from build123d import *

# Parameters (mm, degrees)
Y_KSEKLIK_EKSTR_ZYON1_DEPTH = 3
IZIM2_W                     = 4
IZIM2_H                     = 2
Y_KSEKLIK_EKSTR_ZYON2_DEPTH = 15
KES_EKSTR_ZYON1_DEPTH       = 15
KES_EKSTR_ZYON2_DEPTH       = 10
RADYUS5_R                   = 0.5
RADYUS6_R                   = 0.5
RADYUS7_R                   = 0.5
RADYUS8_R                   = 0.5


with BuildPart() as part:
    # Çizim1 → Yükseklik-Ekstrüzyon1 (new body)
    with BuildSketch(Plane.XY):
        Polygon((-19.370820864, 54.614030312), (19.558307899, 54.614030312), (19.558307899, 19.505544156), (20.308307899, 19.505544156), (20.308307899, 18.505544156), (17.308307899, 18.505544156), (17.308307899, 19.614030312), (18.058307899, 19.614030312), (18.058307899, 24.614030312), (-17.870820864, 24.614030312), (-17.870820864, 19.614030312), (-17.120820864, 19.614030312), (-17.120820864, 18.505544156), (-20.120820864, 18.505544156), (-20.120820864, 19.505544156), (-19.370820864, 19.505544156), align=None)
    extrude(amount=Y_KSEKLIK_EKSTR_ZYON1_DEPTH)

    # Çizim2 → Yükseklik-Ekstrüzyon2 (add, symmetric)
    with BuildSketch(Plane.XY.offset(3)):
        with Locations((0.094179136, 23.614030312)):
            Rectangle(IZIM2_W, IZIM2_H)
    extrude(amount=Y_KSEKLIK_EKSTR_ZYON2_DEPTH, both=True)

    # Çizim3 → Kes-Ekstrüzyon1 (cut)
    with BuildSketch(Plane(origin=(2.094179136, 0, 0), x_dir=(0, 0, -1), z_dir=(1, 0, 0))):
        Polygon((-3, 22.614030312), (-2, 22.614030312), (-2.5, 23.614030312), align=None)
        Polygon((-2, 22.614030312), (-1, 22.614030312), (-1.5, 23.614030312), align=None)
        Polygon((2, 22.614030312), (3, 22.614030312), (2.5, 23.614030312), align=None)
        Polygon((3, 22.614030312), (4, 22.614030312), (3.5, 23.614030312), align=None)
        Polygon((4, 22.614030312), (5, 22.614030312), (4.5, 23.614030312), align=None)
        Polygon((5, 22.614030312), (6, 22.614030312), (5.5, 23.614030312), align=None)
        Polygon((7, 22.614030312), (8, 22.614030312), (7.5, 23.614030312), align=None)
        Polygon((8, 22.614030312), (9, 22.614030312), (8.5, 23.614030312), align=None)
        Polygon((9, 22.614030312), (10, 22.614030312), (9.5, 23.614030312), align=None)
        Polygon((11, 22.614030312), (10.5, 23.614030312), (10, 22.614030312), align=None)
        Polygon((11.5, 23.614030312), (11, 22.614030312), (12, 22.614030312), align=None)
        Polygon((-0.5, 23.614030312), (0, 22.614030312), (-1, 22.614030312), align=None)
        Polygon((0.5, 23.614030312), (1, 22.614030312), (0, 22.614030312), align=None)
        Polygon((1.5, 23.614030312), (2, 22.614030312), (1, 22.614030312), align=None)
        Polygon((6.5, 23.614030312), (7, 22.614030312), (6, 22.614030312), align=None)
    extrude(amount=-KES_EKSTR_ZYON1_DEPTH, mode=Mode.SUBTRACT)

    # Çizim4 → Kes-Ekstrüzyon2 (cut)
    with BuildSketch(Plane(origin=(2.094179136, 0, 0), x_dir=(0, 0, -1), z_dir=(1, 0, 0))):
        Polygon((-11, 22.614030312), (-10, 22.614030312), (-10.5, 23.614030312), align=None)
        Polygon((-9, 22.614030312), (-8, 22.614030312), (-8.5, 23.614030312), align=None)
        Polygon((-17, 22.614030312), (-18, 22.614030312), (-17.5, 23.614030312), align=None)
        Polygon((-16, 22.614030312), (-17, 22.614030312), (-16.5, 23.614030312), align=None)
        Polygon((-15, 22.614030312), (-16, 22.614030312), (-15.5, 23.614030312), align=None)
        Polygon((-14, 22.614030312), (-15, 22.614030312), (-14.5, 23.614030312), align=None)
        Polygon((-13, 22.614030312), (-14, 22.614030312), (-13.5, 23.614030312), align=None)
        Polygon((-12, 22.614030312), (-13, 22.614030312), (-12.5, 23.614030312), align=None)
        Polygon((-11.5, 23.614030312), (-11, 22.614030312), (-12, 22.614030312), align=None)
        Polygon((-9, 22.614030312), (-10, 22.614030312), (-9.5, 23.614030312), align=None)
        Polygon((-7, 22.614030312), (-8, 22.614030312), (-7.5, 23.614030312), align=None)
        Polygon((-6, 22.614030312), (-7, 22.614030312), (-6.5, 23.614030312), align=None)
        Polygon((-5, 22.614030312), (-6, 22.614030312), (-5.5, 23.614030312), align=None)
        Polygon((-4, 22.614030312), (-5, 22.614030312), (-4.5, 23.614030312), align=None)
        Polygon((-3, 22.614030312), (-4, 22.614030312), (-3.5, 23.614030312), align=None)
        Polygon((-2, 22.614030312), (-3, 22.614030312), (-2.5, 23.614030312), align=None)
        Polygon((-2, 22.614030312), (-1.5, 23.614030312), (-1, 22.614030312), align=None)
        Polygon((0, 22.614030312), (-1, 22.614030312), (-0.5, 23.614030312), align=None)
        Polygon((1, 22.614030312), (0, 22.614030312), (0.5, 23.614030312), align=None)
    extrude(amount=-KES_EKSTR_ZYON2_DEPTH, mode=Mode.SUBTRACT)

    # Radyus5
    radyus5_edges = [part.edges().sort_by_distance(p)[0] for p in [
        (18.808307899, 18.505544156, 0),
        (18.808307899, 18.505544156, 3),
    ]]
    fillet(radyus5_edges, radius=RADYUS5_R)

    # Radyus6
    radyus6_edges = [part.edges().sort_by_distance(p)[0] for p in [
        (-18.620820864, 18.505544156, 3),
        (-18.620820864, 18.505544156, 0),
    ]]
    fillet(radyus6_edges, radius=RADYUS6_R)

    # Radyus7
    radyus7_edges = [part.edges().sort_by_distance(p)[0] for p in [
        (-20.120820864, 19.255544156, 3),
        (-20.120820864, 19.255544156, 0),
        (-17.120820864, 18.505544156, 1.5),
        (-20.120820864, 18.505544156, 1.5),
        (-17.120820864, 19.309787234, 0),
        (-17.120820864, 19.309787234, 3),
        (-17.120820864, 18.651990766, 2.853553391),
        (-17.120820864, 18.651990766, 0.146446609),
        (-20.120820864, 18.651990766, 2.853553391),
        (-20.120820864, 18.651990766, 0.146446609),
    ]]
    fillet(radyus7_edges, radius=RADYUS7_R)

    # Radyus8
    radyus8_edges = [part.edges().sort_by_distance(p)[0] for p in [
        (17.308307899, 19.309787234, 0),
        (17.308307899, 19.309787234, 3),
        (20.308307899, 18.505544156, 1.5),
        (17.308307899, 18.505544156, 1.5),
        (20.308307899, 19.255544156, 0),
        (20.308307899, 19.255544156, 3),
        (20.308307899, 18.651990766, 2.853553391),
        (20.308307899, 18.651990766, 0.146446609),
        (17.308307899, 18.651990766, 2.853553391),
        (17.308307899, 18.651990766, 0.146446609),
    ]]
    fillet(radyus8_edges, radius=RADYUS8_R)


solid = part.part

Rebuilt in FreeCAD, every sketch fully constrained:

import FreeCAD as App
import Part
import Sketcher
from FreeCAD import Vector
Q = App.Units.Quantity


def edges_at(feature, points):
    """Names of the edges that pass closest to the given points."""
    edges = feature.Shape.Edges
    near = lambda p: min(range(len(edges)), key=lambda i: edges[i].distToShape(Part.Vertex(*p))[0])
    return sorted({f"Edge{near(p) + 1}" for p in points})

doc = App.newDocument("Part")
body = doc.addObject("PartDesign::Body", "Body")

# Sketch on XY plane
sketch1 = body.newObject("Sketcher::SketchObject", "Sketch")
sketch1.AttachmentSupport = (doc.getObject("XY_Plane"), [""])
sketch1.MapMode = "FlatFace"
sketch1.addGeometry(Part.LineSegment(Vector(19.6, 54.6, 0), Vector(-19.4, 54.6, 0)), False)
sketch1.addGeometry(Part.LineSegment(Vector(-19.4, 54.6, 0), Vector(-19.4, 19.5, 0)), False)
sketch1.addGeometry(Part.LineSegment(Vector(-19.4, 19.5, 0), Vector(-20.1, 19.5, 0)), False)
sketch1.addGeometry(Part.LineSegment(Vector(-20.1, 19.5, 0), Vector(-20.1, 18.5, 0)), False)
sketch1.addGeometry(Part.LineSegment(Vector(-20.1, 18.5, 0), Vector(-17.1, 18.5, 0)), False)
sketch1.addGeometry(Part.LineSegment(Vector(-17.1, 18.5, 0), Vector(-17.1, 19.6, 0)), False)
sketch1.addGeometry(Part.LineSegment(Vector(-17.1, 19.6, 0), Vector(-17.9, 19.6, 0)), False)
sketch1.addGeometry(Part.LineSegment(Vector(-17.9, 19.6, 0), Vector(-17.9, 24.6, 0)), False)
sketch1.addGeometry(Part.LineSegment(Vector(-17.9, 24.6, 0), Vector(18.1, 24.6, 0)), False)
sketch1.addGeometry(Part.LineSegment(Vector(18.1, 24.6, 0), Vector(18.1, 19.6, 0)), False)
sketch1.addGeometry(Part.LineSegment(Vector(18.1, 19.6, 0), Vector(17.3, 19.6, 0)), False)
sketch1.addGeometry(Part.LineSegment(Vector(17.3, 19.6, 0), Vector(17.3, 18.5, 0)), False)
sketch1.addGeometry(Part.LineSegment(Vector(17.3, 18.5, 0), Vector(20.3, 18.5, 0)), False)
sketch1.addGeometry(Part.LineSegment(Vector(20.3, 18.5, 0), Vector(20.3, 19.5, 0)), False)
sketch1.addGeometry(Part.LineSegment(Vector(20.3, 19.5, 0), Vector(19.6, 19.5, 0)), False)
sketch1.addGeometry(Part.LineSegment(Vector(19.6, 19.5, 0), Vector(19.6, 54.6, 0)), False)
sketch1.addConstraint(Sketcher.Constraint("Coincident", 0, 2, 1, 1))
sketch1.addConstraint(Sketcher.Constraint("Coincident", 1, 2, 2, 1))
sketch1.addConstraint(Sketcher.Constraint("Coincident", 2, 2, 3, 1))
sketch1.addConstraint(Sketcher.Constraint("Coincident", 3, 2, 4, 1))
sketch1.addConstraint(Sketcher.Constraint("Coincident", 4, 2, 5, 1))
sketch1.addConstraint(Sketcher.Constraint("Coincident", 5, 2, 6, 1))
sketch1.addConstraint(Sketcher.Constraint("Coincident", 6, 2, 7, 1))
sketch1.addConstraint(Sketcher.Constraint("Coincident", 7, 2, 8, 1))
sketch1.addConstraint(Sketcher.Constraint("Coincident", 8, 2, 9, 1))
sketch1.addConstraint(Sketcher.Constraint("Coincident", 9, 2, 10, 1))
sketch1.addConstraint(Sketcher.Constraint("Coincident", 10, 2, 11, 1))
sketch1.addConstraint(Sketcher.Constraint("Coincident", 11, 2, 12, 1))
sketch1.addConstraint(Sketcher.Constraint("Coincident", 12, 2, 13, 1))
sketch1.addConstraint(Sketcher.Constraint("Coincident", 13, 2, 14, 1))
sketch1.addConstraint(Sketcher.Constraint("Coincident", 14, 2, 15, 1))
sketch1.addConstraint(Sketcher.Constraint("Coincident", 15, 2, 0, 1))
sketch1.addConstraint(Sketcher.Constraint("Horizontal", 0))
sketch1.addConstraint(Sketcher.Constraint("Vertical", 1))
sketch1.addConstraint(Sketcher.Constraint("Horizontal", 2))
sketch1.addConstraint(Sketcher.Constraint("Vertical", 3))
sketch1.addConstraint(Sketcher.Constraint("Horizontal", 4))
sketch1.addConstraint(Sketcher.Constraint("Vertical", 5))
sketch1.addConstraint(Sketcher.Constraint("Horizontal", 6))
sketch1.addConstraint(Sketcher.Constraint("Vertical", 7))
sketch1.addConstraint(Sketcher.Constraint("Horizontal", 8))
sketch1.addConstraint(Sketcher.Constraint("Vertical", 9))
sketch1.addConstraint(Sketcher.Constraint("Horizontal", 10))
sketch1.addConstraint(Sketcher.Constraint("Vertical", 11))
sketch1.addConstraint(Sketcher.Constraint("Horizontal", 12))
sketch1.addConstraint(Sketcher.Constraint("Vertical", 13))
sketch1.addConstraint(Sketcher.Constraint("Horizontal", 14))
sketch1.addConstraint(Sketcher.Constraint("Vertical", 15))
sketch1.addConstraint(Sketcher.Constraint("Horizontal", 6, 2, 9, 2))
sketch1.addConstraint(Sketcher.Constraint("Horizontal", 4, 2, 11, 2))
sketch1.addConstraint(Sketcher.Constraint("Horizontal", 2, 2, 13, 2))
sketch1.addConstraint(Sketcher.Constraint("Equal", 2, 6))
sketch1.addConstraint(Sketcher.Constraint("Equal", 6, 10))
sketch1.addConstraint(Sketcher.Constraint("Equal", 4, 12))
sketch1.addConstraint(Sketcher.Constraint("Equal", 10, 14))
sketch1.addConstraint(Sketcher.Constraint("DistanceX", 4, 1, 4, 2, Q("3 mm")))
sketch1.addConstraint(Sketcher.Constraint("DistanceY", 3, 2, 3, 1, Q("1 mm")))
sketch1.addConstraint(Sketcher.Constraint("DistanceY", 7, 1, 7, 2, Q("5 mm")))
sketch1.addConstraint(Sketcher.Constraint("DistanceY", 5, 2, 0, 2, Q("35 mm")))
sketch1.addConstraint(Sketcher.Constraint("DistanceX", 2, 2, 2, 1, Q("0.75 mm")))
sketch1.addConstraint(Sketcher.Constraint("DistanceX", 0, 2, 0, 1, Q("38.929129 mm")))
sketch1.addConstraint(Sketcher.Constraint("DistanceY", 1, 2, 1, 1, Q("35.108486 mm")))
sketch1.addConstraint(Sketcher.Constraint("DistanceX", 0, 2, -1, 1, Q("19.370821 mm")))
sketch1.addConstraint(Sketcher.Constraint("DistanceY", -1, 1, 0, 2, Q("54.61403 mm")))
pad1 = body.newObject("PartDesign::Pad", "Pad")
pad1.Profile = sketch1
pad1.Length = 3

# Sketch on XY plane
sketch2 = body.newObject("Sketcher::SketchObject", "Sketch001")
sketch2.AttachmentSupport = (doc.getObject("XY_Plane"), [""])
sketch2.MapMode = "FlatFace"
sketch2.AttachmentOffset = App.Placement(Vector(0, 0, 3), App.Rotation())
sketch2.addGeometry(Part.LineSegment(Vector(-1.9, 24.6, 0), Vector(-1.9, 22.6, 0)), False)
sketch2.addGeometry(Part.LineSegment(Vector(-1.9, 22.6, 0), Vector(2.1, 22.6, 0)), False)
sketch2.addGeometry(Part.LineSegment(Vector(2.1, 22.6, 0), Vector(2.1, 24.6, 0)), False)
sketch2.addGeometry(Part.LineSegment(Vector(2.1, 24.6, 0), Vector(-1.9, 24.6, 0)), False)
sketch2.addConstraint(Sketcher.Constraint("Coincident", 0, 2, 1, 1))
sketch2.addConstraint(Sketcher.Constraint("Coincident", 1, 2, 2, 1))
sketch2.addConstraint(Sketcher.Constraint("Coincident", 2, 2, 3, 1))
sketch2.addConstraint(Sketcher.Constraint("Coincident", 3, 2, 0, 1))
sketch2.addConstraint(Sketcher.Constraint("Vertical", 0))
sketch2.addConstraint(Sketcher.Constraint("Horizontal", 1))
sketch2.addConstraint(Sketcher.Constraint("Vertical", 2))
sketch2.addConstraint(Sketcher.Constraint("Horizontal", 3))
sketch2.addConstraint(Sketcher.Constraint("DistanceX", 1, 1, 1, 2, Q("4 mm")))
sketch2.addConstraint(Sketcher.Constraint("DistanceY", 0, 2, 0, 1, Q("2 mm")))
sketch2.addConstraint(Sketcher.Constraint("DistanceX", 0, 2, -1, 1, Q("1.905821 mm")))
sketch2.addConstraint(Sketcher.Constraint("DistanceY", -1, 1, 0, 2, Q("22.61403 mm")))
pad2 = body.newObject("PartDesign::Pad", "Pad001")
pad2.Profile = sketch2
pad2.Length = 30
pad2.Midplane = True

# Sketch on YZ plane
sketch3 = body.newObject("Sketcher::SketchObject", "Sketch002")
sketch3.AttachmentSupport = (doc.getObject("YZ_Plane"), [""])
sketch3.MapMode = "FlatFace"
sketch3.AttachmentOffset = App.Placement(Vector(0, 0, 2.094179), App.Rotation())
sketch3.addGeometry(Part.LineSegment(Vector(22.6, 3, 0), Vector(22.6, 2, 0)), False)
sketch3.addGeometry(Part.LineSegment(Vector(22.6, 2, 0), Vector(23.6, 2.5, 0)), False)
sketch3.addGeometry(Part.LineSegment(Vector(23.6, 2.5, 0), Vector(22.6, 3, 0)), False)
sketch3.addGeometry(Part.LineSegment(Vector(22.6, 2, 0), Vector(22.6, 1, 0)), False)
sketch3.addGeometry(Part.LineSegment(Vector(22.6, 1, 0), Vector(23.6, 1.5, 0)), False)
sketch3.addGeometry(Part.LineSegment(Vector(23.6, 1.5, 0), Vector(22.6, 2, 0)), False)
sketch3.addGeometry(Part.LineSegment(Vector(22.6, -2, 0), Vector(22.6, -3, 0)), False)
sketch3.addGeometry(Part.LineSegment(Vector(22.6, -3, 0), Vector(23.6, -2.5, 0)), False)
sketch3.addGeometry(Part.LineSegment(Vector(23.6, -2.5, 0), Vector(22.6, -2, 0)), False)
sketch3.addGeometry(Part.LineSegment(Vector(22.6, -3, 0), Vector(22.6, -4, 0)), False)
sketch3.addGeometry(Part.LineSegment(Vector(22.6, -4, 0), Vector(23.6, -3.5, 0)), False)
sketch3.addGeometry(Part.LineSegment(Vector(23.6, -3.5, 0), Vector(22.6, -3, 0)), False)
sketch3.addGeometry(Part.LineSegment(Vector(22.6, -4, 0), Vector(22.6, -5, 0)), False)
sketch3.addGeometry(Part.LineSegment(Vector(22.6, -5, 0), Vector(23.6, -4.5, 0)), False)
sketch3.addGeometry(Part.LineSegment(Vector(23.6, -4.5, 0), Vector(22.6, -4, 0)), False)
sketch3.addGeometry(Part.LineSegment(Vector(22.6, -5, 0), Vector(22.6, -6, 0)), False)
sketch3.addGeometry(Part.LineSegment(Vector(22.6, -6, 0), Vector(23.6, -5.5, 0)), False)
sketch3.addGeometry(Part.LineSegment(Vector(23.6, -5.5, 0), Vector(22.6, -5, 0)), False)
sketch3.addGeometry(Part.LineSegment(Vector(22.6, -7, 0), Vector(22.6, -8, 0)), False)
sketch3.addGeometry(Part.LineSegment(Vector(22.6, -8, 0), Vector(23.6, -7.5, 0)), False)
sketch3.addGeometry(Part.LineSegment(Vector(23.6, -7.5, 0), Vector(22.6, -7, 0)), False)
sketch3.addGeometry(Part.LineSegment(Vector(22.6, -8, 0), Vector(22.6, -9, 0)), False)
sketch3.addGeometry(Part.LineSegment(Vector(22.6, -9, 0), Vector(23.6, -8.5, 0)), False)
sketch3.addGeometry(Part.LineSegment(Vector(23.6, -8.5, 0), Vector(22.6, -8, 0)), False)
sketch3.addGeometry(Part.LineSegment(Vector(22.6, -9, 0), Vector(22.6, -10, 0)), False)
sketch3.addGeometry(Part.LineSegment(Vector(22.6, -10, 0), Vector(23.6, -9.5, 0)), False)
sketch3.addGeometry(Part.LineSegment(Vector(23.6, -9.5, 0), Vector(22.6, -9, 0)), False)
sketch3.addGeometry(Part.LineSegment(Vector(22.6, -11, 0), Vector(23.6, -10.5, 0)), False)
sketch3.addGeometry(Part.LineSegment(Vector(23.6, -10.5, 0), Vector(22.6, -10, 0)), False)
sketch3.addGeometry(Part.LineSegment(Vector(22.6, -10, 0), Vector(22.6, -11, 0)), False)
sketch3.addGeometry(Part.LineSegment(Vector(23.6, -11.5, 0), Vector(22.6, -11, 0)), False)
sketch3.addGeometry(Part.LineSegment(Vector(22.6, -11, 0), Vector(22.6, -12, 0)), False)
sketch3.addGeometry(Part.LineSegment(Vector(22.6, -12, 0), Vector(23.6, -11.5, 0)), False)
sketch3.addGeometry(Part.LineSegment(Vector(22.6, 0, 0), Vector(23.6, 0.5, 0)), False)
sketch3.addGeometry(Part.LineSegment(Vector(23.6, 0.5, 0), Vector(22.6, 1, 0)), False)
sketch3.addGeometry(Part.LineSegment(Vector(22.6, 1, 0), Vector(22.6, 0, 0)), False)
sketch3.addGeometry(Part.LineSegment(Vector(22.6, -1, 0), Vector(23.6, -0.5, 0)), False)
sketch3.addGeometry(Part.LineSegment(Vector(23.6, -0.5, 0), Vector(22.6, 0, 0)), False)
sketch3.addGeometry(Part.LineSegment(Vector(22.6, 0, 0), Vector(22.6, -1, 0)), False)
sketch3.addGeometry(Part.LineSegment(Vector(22.6, -2, 0), Vector(23.6, -1.5, 0)), False)
sketch3.addGeometry(Part.LineSegment(Vector(23.6, -1.5, 0), Vector(22.6, -1, 0)), False)
sketch3.addGeometry(Part.LineSegment(Vector(22.6, -1, 0), Vector(22.6, -2, 0)), False)
sketch3.addGeometry(Part.LineSegment(Vector(22.6, -7, 0), Vector(23.6, -6.5, 0)), False)
sketch3.addGeometry(Part.LineSegment(Vector(23.6, -6.5, 0), Vector(22.6, -6, 0)), False)
sketch3.addGeometry(Part.LineSegment(Vector(22.6, -6, 0), Vector(22.6, -7, 0)), False)
sketch3.addConstraint(Sketcher.Constraint("Coincident", 0, 2, 1, 1))
sketch3.addConstraint(Sketcher.Constraint("Coincident", 1, 2, 2, 1))
sketch3.addConstraint(Sketcher.Constraint("Coincident", 2, 2, 0, 1))
sketch3.addConstraint(Sketcher.Constraint("Coincident", 3, 2, 4, 1))
sketch3.addConstraint(Sketcher.Constraint("Coincident", 4, 2, 5, 1))
sketch3.addConstraint(Sketcher.Constraint("Coincident", 5, 2, 3, 1))
sketch3.addConstraint(Sketcher.Constraint("Coincident", 6, 2, 7, 1))
sketch3.addConstraint(Sketcher.Constraint("Coincident", 7, 2, 8, 1))
sketch3.addConstraint(Sketcher.Constraint("Coincident", 8, 2, 6, 1))
sketch3.addConstraint(Sketcher.Constraint("Coincident", 9, 2, 10, 1))
sketch3.addConstraint(Sketcher.Constraint("Coincident", 10, 2, 11, 1))
sketch3.addConstraint(Sketcher.Constraint("Coincident", 11, 2, 9, 1))
sketch3.addConstraint(Sketcher.Constraint("Coincident", 12, 2, 13, 1))
sketch3.addConstraint(Sketcher.Constraint("Coincident", 13, 2, 14, 1))
sketch3.addConstraint(Sketcher.Constraint("Coincident", 14, 2, 12, 1))
sketch3.addConstraint(Sketcher.Constraint("Coincident", 15, 2, 16, 1))
sketch3.addConstraint(Sketcher.Constraint("Coincident", 16, 2, 17, 1))
sketch3.addConstraint(Sketcher.Constraint("Coincident", 17, 2, 15, 1))
sketch3.addConstraint(Sketcher.Constraint("Coincident", 18, 2, 19, 1))
sketch3.addConstraint(Sketcher.Constraint("Coincident", 19, 2, 20, 1))
sketch3.addConstraint(Sketcher.Constraint("Coincident", 20, 2, 18, 1))
sketch3.addConstraint(Sketcher.Constraint("Coincident", 21, 2, 22, 1))
sketch3.addConstraint(Sketcher.Constraint("Coincident", 22, 2, 23, 1))
sketch3.addConstraint(Sketcher.Constraint("Coincident", 23, 2, 21, 1))
sketch3.addConstraint(Sketcher.Constraint("Coincident", 24, 2, 25, 1))
sketch3.addConstraint(Sketcher.Constraint("Coincident", 25, 2, 26, 1))
sketch3.addConstraint(Sketcher.Constraint("Coincident", 26, 2, 24, 1))
sketch3.addConstraint(Sketcher.Constraint("Coincident", 27, 2, 28, 1))
sketch3.addConstraint(Sketcher.Constraint("Coincident", 28, 2, 29, 1))
sketch3.addConstraint(Sketcher.Constraint("Coincident", 29, 2, 27, 1))
sketch3.addConstraint(Sketcher.Constraint("Coincident", 30, 2, 31, 1))
sketch3.addConstraint(Sketcher.Constraint("Coincident", 31, 2, 32, 1))
sketch3.addConstraint(Sketcher.Constraint("Coincident", 32, 2, 30, 1))
sketch3.addConstraint(Sketcher.Constraint("Coincident", 33, 2, 34, 1))
sketch3.addConstraint(Sketcher.Constraint("Coincident", 34, 2, 35, 1))
sketch3.addConstraint(Sketcher.Constraint("Coincident", 35, 2, 33, 1))
sketch3.addConstraint(Sketcher.Constraint("Coincident", 36, 2, 37, 1))
sketch3.addConstraint(Sketcher.Constraint("Coincident", 37, 2, 38, 1))
sketch3.addConstraint(Sketcher.Constraint("Coincident", 38, 2, 36, 1))
sketch3.addConstraint(Sketcher.Constraint("Coincident", 39, 2, 40, 1))
sketch3.addConstraint(Sketcher.Constraint("Coincident", 40, 2, 41, 1))
sketch3.addConstraint(Sketcher.Constraint("Coincident", 41, 2, 39, 1))
sketch3.addConstraint(Sketcher.Constraint("Coincident", 42, 2, 43, 1))
sketch3.addConstraint(Sketcher.Constraint("Coincident", 43, 2, 44, 1))
sketch3.addConstraint(Sketcher.Constraint("Coincident", 44, 2, 42, 1))
sketch3.addConstraint(Sketcher.Constraint("Vertical", 0))
sketch3.addConstraint(Sketcher.Constraint("Vertical", 3))
sketch3.addConstraint(Sketcher.Constraint("Vertical", 6))
sketch3.addConstraint(Sketcher.Constraint("Vertical", 9))
sketch3.addConstraint(Sketcher.Constraint("Vertical", 12))
sketch3.addConstraint(Sketcher.Constraint("Vertical", 15))
sketch3.addConstraint(Sketcher.Constraint("Vertical", 18))
sketch3.addConstraint(Sketcher.Constraint("Vertical", 21))
sketch3.addConstraint(Sketcher.Constraint("Vertical", 24))
sketch3.addConstraint(Sketcher.Constraint("Vertical", 29))
sketch3.addConstraint(Sketcher.Constraint("Vertical", 31))
sketch3.addConstraint(Sketcher.Constraint("Vertical", 35))
sketch3.addConstraint(Sketcher.Constraint("Vertical", 38))
sketch3.addConstraint(Sketcher.Constraint("Vertical", 41))
sketch3.addConstraint(Sketcher.Constraint("Vertical", 44))
sketch3.addConstraint(Sketcher.Constraint("Coincident", 5, 2, 0, 2))
sketch3.addConstraint(Sketcher.Constraint("Coincident", 11, 2, 6, 2))
sketch3.addConstraint(Sketcher.Constraint("Coincident", 14, 2, 9, 2))
sketch3.addConstraint(Sketcher.Constraint("Coincident", 17, 2, 12, 2))
sketch3.addConstraint(Sketcher.Constraint("Coincident", 23, 2, 18, 2))
sketch3.addConstraint(Sketcher.Constraint("Coincident", 26, 2, 21, 2))
sketch3.addConstraint(Sketcher.Constraint("Coincident", 28, 2, 24, 2))
sketch3.addConstraint(Sketcher.Constraint("Coincident", 30, 2, 29, 2))
sketch3.addConstraint(Sketcher.Constraint("Coincident", 34, 2, 3, 2))
sketch3.addConstraint(Sketcher.Constraint("Coincident", 37, 2, 35, 2))
sketch3.addConstraint(Sketcher.Constraint("Coincident", 40, 2, 38, 2))
sketch3.addConstraint(Sketcher.Constraint("Coincident", 41, 2, 8, 2))
sketch3.addConstraint(Sketcher.Constraint("Coincident", 43, 2, 15, 2))
sketch3.addConstraint(Sketcher.Constraint("Coincident", 44, 2, 20, 2))
sketch3.addConstraint(Sketcher.Constraint("Symmetric", 1, 2, 7, 2, -1))
sketch3.addConstraint(Sketcher.Constraint("Symmetric", 33, 2, 36, 2, -1))
sketch3.addConstraint(Sketcher.Constraint("Symmetric", 4, 2, 39, 2, -1))
sketch3.addConstraint(Sketcher.Constraint("PointOnObject", 35, 2, -1))
sketch3.addConstraint(Sketcher.Constraint("Parallel", 1, 4))
sketch3.addConstraint(Sketcher.Constraint("Parallel", 2, 5))
sketch3.addConstraint(Sketcher.Constraint("Parallel", 4, 7))
sketch3.addConstraint(Sketcher.Constraint("Parallel", 5, 8))
sketch3.addConstraint(Sketcher.Constraint("Parallel", 7, 10))
sketch3.addConstraint(Sketcher.Constraint("Parallel", 8, 11))
sketch3.addConstraint(Sketcher.Constraint("Parallel", 10, 13))
sketch3.addConstraint(Sketcher.Constraint("Parallel", 11, 14))
sketch3.addConstraint(Sketcher.Constraint("Parallel", 13, 16))
sketch3.addConstraint(Sketcher.Constraint("Parallel", 14, 17))
sketch3.addConstraint(Sketcher.Constraint("Parallel", 16, 19))
sketch3.addConstraint(Sketcher.Constraint("Parallel", 17, 20))
sketch3.addConstraint(Sketcher.Constraint("Parallel", 19, 22))
sketch3.addConstraint(Sketcher.Constraint("Parallel", 20, 23))
sketch3.addConstraint(Sketcher.Constraint("Parallel", 22, 25))
sketch3.addConstraint(Sketcher.Constraint("Parallel", 23, 26))
sketch3.addConstraint(Sketcher.Constraint("Parallel", 25, 27))
sketch3.addConstraint(Sketcher.Constraint("Parallel", 26, 28))
sketch3.addConstraint(Sketcher.Constraint("Parallel", 28, 30))
sketch3.addConstraint(Sketcher.Constraint("Parallel", 27, 32))
sketch3.addConstraint(Sketcher.Constraint("Parallel", 32, 33))
sketch3.addConstraint(Sketcher.Constraint("Parallel", 30, 34))
sketch3.addConstraint(Sketcher.Constraint("Parallel", 33, 36))
sketch3.addConstraint(Sketcher.Constraint("Parallel", 34, 37))
sketch3.addConstraint(Sketcher.Constraint("Parallel", 39, 42))
sketch3.addConstraint(Sketcher.Constraint("Parallel", 40, 43))
sketch3.addConstraint(Sketcher.Constraint("Vertical", 1, 2, 4, 2))
sketch3.addConstraint(Sketcher.Constraint("Vertical", 7, 2, 10, 2))
sketch3.addConstraint(Sketcher.Constraint("Vertical", 10, 2, 13, 2))
sketch3.addConstraint(Sketcher.Constraint("Vertical", 13, 2, 16, 2))
sketch3.addConstraint(Sketcher.Constraint("Vertical", 16, 2, 19, 2))
sketch3.addConstraint(Sketcher.Constraint("Vertical", 19, 2, 22, 2))
sketch3.addConstraint(Sketcher.Constraint("Vertical", 22, 2, 25, 2))
sketch3.addConstraint(Sketcher.Constraint("Vertical", 25, 2, 27, 2))
sketch3.addConstraint(Sketcher.Constraint("Vertical", 27, 2, 32, 2))
sketch3.addConstraint(Sketcher.Constraint("Vertical", 32, 2, 33, 2))
sketch3.addConstraint(Sketcher.Constraint("Vertical", 39, 2, 42, 2))
sketch3.addConstraint(Sketcher.Constraint("DistanceY", 0, 2, 0, 1, Q("1 mm")))
sketch3.addConstraint(Sketcher.Constraint("DistanceX", 0, 2, 1, 2, Q("1 mm")))
sketch3.addConstraint(Sketcher.Constraint("DistanceX", -1, 1, 0, 2, Q("22.61403 mm")))
pocket1 = body.newObject("PartDesign::Pocket", "Pocket")
pocket1.Profile = sketch3
pocket1.Length = 15

# Sketch on YZ plane
sketch4 = body.newObject("Sketcher::SketchObject", "Sketch003")
sketch4.AttachmentSupport = (doc.getObject("YZ_Plane"), [""])
sketch4.MapMode = "FlatFace"
sketch4.AttachmentOffset = App.Placement(Vector(0, 0, 2.094179), App.Rotation())
sketch4.addGeometry(Part.LineSegment(Vector(22.6, 11, 0), Vector(22.6, 10, 0)), False)
sketch4.addGeometry(Part.LineSegment(Vector(22.6, 10, 0), Vector(23.6, 10.5, 0)), False)
sketch4.addGeometry(Part.LineSegment(Vector(23.6, 10.5, 0), Vector(22.6, 11, 0)), False)
sketch4.addGeometry(Part.LineSegment(Vector(22.6, 9, 0), Vector(22.6, 8, 0)), False)
sketch4.addGeometry(Part.LineSegment(Vector(22.6, 8, 0), Vector(23.6, 8.5, 0)), False)
sketch4.addGeometry(Part.LineSegment(Vector(23.6, 8.5, 0), Vector(22.6, 9, 0)), False)
sketch4.addGeometry(Part.LineSegment(Vector(22.6, 18, 0), Vector(22.6, 17, 0)), False)
sketch4.addGeometry(Part.LineSegment(Vector(22.6, 17, 0), Vector(23.6, 17.5, 0)), False)
sketch4.addGeometry(Part.LineSegment(Vector(23.6, 17.5, 0), Vector(22.6, 18, 0)), False)
sketch4.addGeometry(Part.LineSegment(Vector(22.6, 17, 0), Vector(22.6, 16, 0)), False)
sketch4.addGeometry(Part.LineSegment(Vector(22.6, 16, 0), Vector(23.6, 16.5, 0)), False)
sketch4.addGeometry(Part.LineSegment(Vector(23.6, 16.5, 0), Vector(22.6, 17, 0)), False)
sketch4.addGeometry(Part.LineSegment(Vector(22.6, 16, 0), Vector(22.6, 15, 0)), False)
sketch4.addGeometry(Part.LineSegment(Vector(22.6, 15, 0), Vector(23.6, 15.5, 0)), False)
sketch4.addGeometry(Part.LineSegment(Vector(23.6, 15.5, 0), Vector(22.6, 16, 0)), False)
sketch4.addGeometry(Part.LineSegment(Vector(22.6, 15, 0), Vector(22.6, 14, 0)), False)
sketch4.addGeometry(Part.LineSegment(Vector(22.6, 14, 0), Vector(23.6, 14.5, 0)), False)
sketch4.addGeometry(Part.LineSegment(Vector(23.6, 14.5, 0), Vector(22.6, 15, 0)), False)
sketch4.addGeometry(Part.LineSegment(Vector(22.6, 14, 0), Vector(22.6, 13, 0)), False)
sketch4.addGeometry(Part.LineSegment(Vector(22.6, 13, 0), Vector(23.6, 13.5, 0)), False)
sketch4.addGeometry(Part.LineSegment(Vector(23.6, 13.5, 0), Vector(22.6, 14, 0)), False)
sketch4.addGeometry(Part.LineSegment(Vector(22.6, 13, 0), Vector(22.6, 12, 0)), False)
sketch4.addGeometry(Part.LineSegment(Vector(22.6, 12, 0), Vector(23.6, 12.5, 0)), False)
sketch4.addGeometry(Part.LineSegment(Vector(23.6, 12.5, 0), Vector(22.6, 13, 0)), False)
sketch4.addGeometry(Part.LineSegment(Vector(22.6, 11, 0), Vector(23.6, 11.5, 0)), False)
sketch4.addGeometry(Part.LineSegment(Vector(23.6, 11.5, 0), Vector(22.6, 12, 0)), False)
sketch4.addGeometry(Part.LineSegment(Vector(22.6, 12, 0), Vector(22.6, 11, 0)), False)
sketch4.addGeometry(Part.LineSegment(Vector(22.6, 10, 0), Vector(22.6, 9, 0)), False)
sketch4.addGeometry(Part.LineSegment(Vector(22.6, 9, 0), Vector(23.6, 9.5, 0)), False)
sketch4.addGeometry(Part.LineSegment(Vector(23.6, 9.5, 0), Vector(22.6, 10, 0)), False)
sketch4.addGeometry(Part.LineSegment(Vector(22.6, 8, 0), Vector(22.6, 7, 0)), False)
sketch4.addGeometry(Part.LineSegment(Vector(22.6, 7, 0), Vector(23.6, 7.5, 0)), False)
sketch4.addGeometry(Part.LineSegment(Vector(23.6, 7.5, 0), Vector(22.6, 8, 0)), False)
sketch4.addGeometry(Part.LineSegment(Vector(22.6, 7, 0), Vector(22.6, 6, 0)), False)
sketch4.addGeometry(Part.LineSegment(Vector(22.6, 6, 0), Vector(23.6, 6.5, 0)), False)
sketch4.addGeometry(Part.LineSegment(Vector(23.6, 6.5, 0), Vector(22.6, 7, 0)), False)
sketch4.addGeometry(Part.LineSegment(Vector(22.6, 6, 0), Vector(22.6, 5, 0)), False)
sketch4.addGeometry(Part.LineSegment(Vector(22.6, 5, 0), Vector(23.6, 5.5, 0)), False)
sketch4.addGeometry(Part.LineSegment(Vector(23.6, 5.5, 0), Vector(22.6, 6, 0)), False)
sketch4.addGeometry(Part.LineSegment(Vector(22.6, 5, 0), Vector(22.6, 4, 0)), False)
sketch4.addGeometry(Part.LineSegment(Vector(22.6, 4, 0), Vector(23.6, 4.5, 0)), False)
sketch4.addGeometry(Part.LineSegment(Vector(23.6, 4.5, 0), Vector(22.6, 5, 0)), False)
sketch4.addGeometry(Part.LineSegment(Vector(22.6, 4, 0), Vector(22.6, 3, 0)), False)
sketch4.addGeometry(Part.LineSegment(Vector(22.6, 3, 0), Vector(23.6, 3.5, 0)), False)
sketch4.addGeometry(Part.LineSegment(Vector(23.6, 3.5, 0), Vector(22.6, 4, 0)), False)
sketch4.addGeometry(Part.LineSegment(Vector(22.6, 3, 0), Vector(22.6, 2, 0)), False)
sketch4.addGeometry(Part.LineSegment(Vector(22.6, 2, 0), Vector(23.6, 2.5, 0)), False)
sketch4.addGeometry(Part.LineSegment(Vector(23.6, 2.5, 0), Vector(22.6, 3, 0)), False)
sketch4.addGeometry(Part.LineSegment(Vector(23.6, 1.5, 0), Vector(22.6, 2, 0)), False)
sketch4.addGeometry(Part.LineSegment(Vector(22.6, 2, 0), Vector(22.6, 1, 0)), False)
sketch4.addGeometry(Part.LineSegment(Vector(22.6, 1, 0), Vector(23.6, 1.5, 0)), False)
sketch4.addGeometry(Part.LineSegment(Vector(22.6, 1, 0), Vector(22.6, 0, 0)), False)
sketch4.addGeometry(Part.LineSegment(Vector(22.6, 0, 0), Vector(23.6, 0.5, 0)), False)
sketch4.addGeometry(Part.LineSegment(Vector(23.6, 0.5, 0), Vector(22.6, 1, 0)), False)
sketch4.addGeometry(Part.LineSegment(Vector(22.6, 0, 0), Vector(22.6, -1, 0)), False)
sketch4.addGeometry(Part.LineSegment(Vector(22.6, -1, 0), Vector(23.6, -0.5, 0)), False)
sketch4.addGeometry(Part.LineSegment(Vector(23.6, -0.5, 0), Vector(22.6, 0, 0)), False)
sketch4.addConstraint(Sketcher.Constraint("Coincident", 0, 2, 1, 1))
sketch4.addConstraint(Sketcher.Constraint("Coincident", 1, 2, 2, 1))
sketch4.addConstraint(Sketcher.Constraint("Coincident", 2, 2, 0, 1))
sketch4.addConstraint(Sketcher.Constraint("Coincident", 3, 2, 4, 1))
sketch4.addConstraint(Sketcher.Constraint("Coincident", 4, 2, 5, 1))
sketch4.addConstraint(Sketcher.Constraint("Coincident", 5, 2, 3, 1))
sketch4.addConstraint(Sketcher.Constraint("Coincident", 6, 2, 7, 1))
sketch4.addConstraint(Sketcher.Constraint("Coincident", 7, 2, 8, 1))
sketch4.addConstraint(Sketcher.Constraint("Coincident", 8, 2, 6, 1))
sketch4.addConstraint(Sketcher.Constraint("Coincident", 9, 2, 10, 1))
sketch4.addConstraint(Sketcher.Constraint("Coincident", 10, 2, 11, 1))
sketch4.addConstraint(Sketcher.Constraint("Coincident", 11, 2, 9, 1))
sketch4.addConstraint(Sketcher.Constraint("Coincident", 12, 2, 13, 1))
sketch4.addConstraint(Sketcher.Constraint("Coincident", 13, 2, 14, 1))
sketch4.addConstraint(Sketcher.Constraint("Coincident", 14, 2, 12, 1))
sketch4.addConstraint(Sketcher.Constraint("Coincident", 15, 2, 16, 1))
sketch4.addConstraint(Sketcher.Constraint("Coincident", 16, 2, 17, 1))
sketch4.addConstraint(Sketcher.Constraint("Coincident", 17, 2, 15, 1))
sketch4.addConstraint(Sketcher.Constraint("Coincident", 18, 2, 19, 1))
sketch4.addConstraint(Sketcher.Constraint("Coincident", 19, 2, 20, 1))
sketch4.addConstraint(Sketcher.Constraint("Coincident", 20, 2, 18, 1))
sketch4.addConstraint(Sketcher.Constraint("Coincident", 21, 2, 22, 1))
sketch4.addConstraint(Sketcher.Constraint("Coincident", 22, 2, 23, 1))
sketch4.addConstraint(Sketcher.Constraint("Coincident", 23, 2, 21, 1))
sketch4.addConstraint(Sketcher.Constraint("Coincident", 24, 2, 25, 1))
sketch4.addConstraint(Sketcher.Constraint("Coincident", 25, 2, 26, 1))
sketch4.addConstraint(Sketcher.Constraint("Coincident", 26, 2, 24, 1))
sketch4.addConstraint(Sketcher.Constraint("Coincident", 27, 2, 28, 1))
sketch4.addConstraint(Sketcher.Constraint("Coincident", 28, 2, 29, 1))
sketch4.addConstraint(Sketcher.Constraint("Coincident", 29, 2, 27, 1))
sketch4.addConstraint(Sketcher.Constraint("Coincident", 30, 2, 31, 1))
sketch4.addConstraint(Sketcher.Constraint("Coincident", 31, 2, 32, 1))
sketch4.addConstraint(Sketcher.Constraint("Coincident", 32, 2, 30, 1))
sketch4.addConstraint(Sketcher.Constraint("Coincident", 33, 2, 34, 1))
sketch4.addConstraint(Sketcher.Constraint("Coincident", 34, 2, 35, 1))
sketch4.addConstraint(Sketcher.Constraint("Coincident", 35, 2, 33, 1))
sketch4.addConstraint(Sketcher.Constraint("Coincident", 36, 2, 37, 1))
sketch4.addConstraint(Sketcher.Constraint("Coincident", 37, 2, 38, 1))
sketch4.addConstraint(Sketcher.Constraint("Coincident", 38, 2, 36, 1))
sketch4.addConstraint(Sketcher.Constraint("Coincident", 39, 2, 40, 1))
sketch4.addConstraint(Sketcher.Constraint("Coincident", 40, 2, 41, 1))
sketch4.addConstraint(Sketcher.Constraint("Coincident", 41, 2, 39, 1))
sketch4.addConstraint(Sketcher.Constraint("Coincident", 42, 2, 43, 1))
sketch4.addConstraint(Sketcher.Constraint("Coincident", 43, 2, 44, 1))
sketch4.addConstraint(Sketcher.Constraint("Coincident", 44, 2, 42, 1))
sketch4.addConstraint(Sketcher.Constraint("Coincident", 45, 2, 46, 1))
sketch4.addConstraint(Sketcher.Constraint("Coincident", 46, 2, 47, 1))
sketch4.addConstraint(Sketcher.Constraint("Coincident", 47, 2, 45, 1))
sketch4.addConstraint(Sketcher.Constraint("Coincident", 48, 2, 49, 1))
sketch4.addConstraint(Sketcher.Constraint("Coincident", 49, 2, 50, 1))
sketch4.addConstraint(Sketcher.Constraint("Coincident", 50, 2, 48, 1))
sketch4.addConstraint(Sketcher.Constraint("Coincident", 51, 2, 52, 1))
sketch4.addConstraint(Sketcher.Constraint("Coincident", 52, 2, 53, 1))
sketch4.addConstraint(Sketcher.Constraint("Coincident", 53, 2, 51, 1))
sketch4.addConstraint(Sketcher.Constraint("Coincident", 54, 2, 55, 1))
sketch4.addConstraint(Sketcher.Constraint("Coincident", 55, 2, 56, 1))
sketch4.addConstraint(Sketcher.Constraint("Coincident", 56, 2, 54, 1))
sketch4.addConstraint(Sketcher.Constraint("Vertical", 0))
sketch4.addConstraint(Sketcher.Constraint("Vertical", 3))
sketch4.addConstraint(Sketcher.Constraint("Vertical", 6))
sketch4.addConstraint(Sketcher.Constraint("Vertical", 9))
sketch4.addConstraint(Sketcher.Constraint("Vertical", 12))
sketch4.addConstraint(Sketcher.Constraint("Vertical", 15))
sketch4.addConstraint(Sketcher.Constraint("Vertical", 18))
sketch4.addConstraint(Sketcher.Constraint("Vertical", 21))
sketch4.addConstraint(Sketcher.Constraint("Vertical", 26))
sketch4.addConstraint(Sketcher.Constraint("Vertical", 27))
sketch4.addConstraint(Sketcher.Constraint("Vertical", 30))
sketch4.addConstraint(Sketcher.Constraint("Vertical", 33))
sketch4.addConstraint(Sketcher.Constraint("Vertical", 36))
sketch4.addConstraint(Sketcher.Constraint("Vertical", 39))
sketch4.addConstraint(Sketcher.Constraint("Vertical", 42))
sketch4.addConstraint(Sketcher.Constraint("Vertical", 45))
sketch4.addConstraint(Sketcher.Constraint("Vertical", 49))
sketch4.addConstraint(Sketcher.Constraint("Vertical", 51))
sketch4.addConstraint(Sketcher.Constraint("Vertical", 54))
sketch4.addConstraint(Sketcher.Constraint("Coincident", 11, 2, 6, 2))
sketch4.addConstraint(Sketcher.Constraint("Coincident", 14, 2, 9, 2))
sketch4.addConstraint(Sketcher.Constraint("Coincident", 17, 2, 12, 2))
sketch4.addConstraint(Sketcher.Constraint("Coincident", 20, 2, 15, 2))
sketch4.addConstraint(Sketcher.Constraint("Coincident", 23, 2, 18, 2))
sketch4.addConstraint(Sketcher.Constraint("Coincident", 25, 2, 21, 2))
sketch4.addConstraint(Sketcher.Constraint("Coincident", 26, 2, 2, 2))
sketch4.addConstraint(Sketcher.Constraint("Coincident", 27, 2, 5, 2))
sketch4.addConstraint(Sketcher.Constraint("Coincident", 29, 2, 0, 2))
sketch4.addConstraint(Sketcher.Constraint("Coincident", 32, 2, 3, 2))
sketch4.addConstraint(Sketcher.Constraint("Coincident", 35, 2, 30, 2))
sketch4.addConstraint(Sketcher.Constraint("Coincident", 38, 2, 33, 2))
sketch4.addConstraint(Sketcher.Constraint("Coincident", 41, 2, 36, 2))
sketch4.addConstraint(Sketcher.Constraint("Coincident", 44, 2, 39, 2))
sketch4.addConstraint(Sketcher.Constraint("Coincident", 47, 2, 42, 2))
sketch4.addConstraint(Sketcher.Constraint("Coincident", 48, 2, 45, 2))
sketch4.addConstraint(Sketcher.Constraint("Coincident", 53, 2, 49, 2))
sketch4.addConstraint(Sketcher.Constraint("Coincident", 56, 2, 51, 2))
sketch4.addConstraint(Sketcher.Constraint("Symmetric", 52, 2, 55, 2, -1))
sketch4.addConstraint(Sketcher.Constraint("PointOnObject", 51, 2, -1))
sketch4.addConstraint(Sketcher.Constraint("Parallel", 1, 4))
sketch4.addConstraint(Sketcher.Constraint("Parallel", 2, 5))
sketch4.addConstraint(Sketcher.Constraint("Parallel", 4, 7))
sketch4.addConstraint(Sketcher.Constraint("Parallel", 5, 8))
sketch4.addConstraint(Sketcher.Constraint("Parallel", 7, 10))
sketch4.addConstraint(Sketcher.Constraint("Parallel", 8, 11))
sketch4.addConstraint(Sketcher.Constraint("Parallel", 10, 13))
sketch4.addConstraint(Sketcher.Constraint("Parallel", 11, 14))
sketch4.addConstraint(Sketcher.Constraint("Parallel", 13, 16))
sketch4.addConstraint(Sketcher.Constraint("Parallel", 14, 17))
sketch4.addConstraint(Sketcher.Constraint("Parallel", 16, 19))
sketch4.addConstraint(Sketcher.Constraint("Parallel", 17, 20))
sketch4.addConstraint(Sketcher.Constraint("Parallel", 19, 22))
sketch4.addConstraint(Sketcher.Constraint("Parallel", 20, 23))
sketch4.addConstraint(Sketcher.Constraint("Parallel", 22, 24))
sketch4.addConstraint(Sketcher.Constraint("Parallel", 23, 25))
sketch4.addConstraint(Sketcher.Constraint("Parallel", 24, 28))
sketch4.addConstraint(Sketcher.Constraint("Parallel", 25, 29))
sketch4.addConstraint(Sketcher.Constraint("Parallel", 28, 31))
sketch4.addConstraint(Sketcher.Constraint("Parallel", 29, 32))
sketch4.addConstraint(Sketcher.Constraint("Parallel", 31, 34))
sketch4.addConstraint(Sketcher.Constraint("Parallel", 32, 35))
sketch4.addConstraint(Sketcher.Constraint("Parallel", 34, 37))
sketch4.addConstraint(Sketcher.Constraint("Parallel", 35, 38))
sketch4.addConstraint(Sketcher.Constraint("Parallel", 37, 40))
sketch4.addConstraint(Sketcher.Constraint("Parallel", 38, 41))
sketch4.addConstraint(Sketcher.Constraint("Parallel", 40, 43))
sketch4.addConstraint(Sketcher.Constraint("Parallel", 41, 44))
sketch4.addConstraint(Sketcher.Constraint("Parallel", 43, 46))
sketch4.addConstraint(Sketcher.Constraint("Parallel", 44, 47))
sketch4.addConstraint(Sketcher.Constraint("Parallel", 47, 48))
sketch4.addConstraint(Sketcher.Constraint("Parallel", 46, 50))
sketch4.addConstraint(Sketcher.Constraint("Parallel", 50, 52))
sketch4.addConstraint(Sketcher.Constraint("Parallel", 48, 53))
sketch4.addConstraint(Sketcher.Constraint("Parallel", 52, 55))
sketch4.addConstraint(Sketcher.Constraint("Parallel", 53, 56))
sketch4.addConstraint(Sketcher.Constraint("Vertical", 1, 2, 4, 2))
sketch4.addConstraint(Sketcher.Constraint("Vertical", 4, 2, 7, 2))
sketch4.addConstraint(Sketcher.Constraint("Vertical", 7, 2, 10, 2))
sketch4.addConstraint(Sketcher.Constraint("Vertical", 10, 2, 13, 2))
sketch4.addConstraint(Sketcher.Constraint("Vertical", 13, 2, 16, 2))
sketch4.addConstraint(Sketcher.Constraint("Vertical", 16, 2, 19, 2))
sketch4.addConstraint(Sketcher.Constraint("Vertical", 19, 2, 22, 2))
sketch4.addConstraint(Sketcher.Constraint("Vertical", 22, 2, 24, 2))
sketch4.addConstraint(Sketcher.Constraint("Vertical", 24, 2, 28, 2))
sketch4.addConstraint(Sketcher.Constraint("Vertical", 28, 2, 31, 2))
sketch4.addConstraint(Sketcher.Constraint("Vertical", 31, 2, 34, 2))
sketch4.addConstraint(Sketcher.Constraint("Vertical", 34, 2, 37, 2))
sketch4.addConstraint(Sketcher.Constraint("Vertical", 37, 2, 40, 2))
sketch4.addConstraint(Sketcher.Constraint("Vertical", 40, 2, 43, 2))
sketch4.addConstraint(Sketcher.Constraint("Vertical", 43, 2, 46, 2))
sketch4.addConstraint(Sketcher.Constraint("Vertical", 46, 2, 50, 2))
sketch4.addConstraint(Sketcher.Constraint("Vertical", 50, 2, 52, 2))
sketch4.addConstraint(Sketcher.Constraint("DistanceY", 0, 2, 0, 1, Q("1 mm")))
sketch4.addConstraint(Sketcher.Constraint("DistanceX", 0, 2, 1, 2, Q("1 mm")))
sketch4.addConstraint(Sketcher.Constraint("DistanceX", -1, 1, 0, 2, Q("22.61403 mm")))
pocket2 = body.newObject("PartDesign::Pocket", "Pocket001")
pocket2.Profile = sketch4
pocket2.Length = 10
doc.recompute()

fillet = body.newObject("PartDesign::Fillet", "Fillet")
fillet.Base = (pocket2, edges_at(pocket2, [(18.808, 18.506, 0), (18.808, 18.506, 3)]))
fillet.Radius = 0.5
doc.recompute()

fillet2 = body.newObject("PartDesign::Fillet", "Fillet001")
fillet2.Base = (fillet, edges_at(fillet, [(-18.621, 18.506, 3), (-18.621, 18.506, 0)]))
fillet2.Radius = 0.5
doc.recompute()

fillet3 = body.newObject("PartDesign::Fillet", "Fillet002")
fillet3.Base = (fillet2, edges_at(fillet2, [
    (-20.121, 19.256, 3),
    (-20.121, 19.256, 0),
    (-17.121, 18.506, 1.5),
    (-20.121, 18.506, 1.5),
    (-17.121, 19.31, 0),
    (-17.121, 19.31, 3),
    (-17.121, 18.652, 2.854),
    (-17.121, 18.652, 0.146),
    (-20.121, 18.652, 2.854),
    (-20.121, 18.652, 0.146),
]))
fillet3.Radius = 0.5
doc.recompute()

fillet4 = body.newObject("PartDesign::Fillet", "Fillet003")
fillet4.Base = (fillet3, edges_at(fillet3, [
    (17.308, 19.31, 0),
    (17.308, 19.31, 3),
    (20.308, 18.506, 1.5),
    (17.308, 18.506, 1.5),
    (20.308, 19.256, 0),
    (20.308, 19.256, 3),
    (20.308, 18.652, 2.854),
    (20.308, 18.652, 0.146),
    (17.308, 18.652, 2.854),
    (17.308, 18.652, 0.146),
]))
fillet4.Radius = 0.5

doc.recompute()
